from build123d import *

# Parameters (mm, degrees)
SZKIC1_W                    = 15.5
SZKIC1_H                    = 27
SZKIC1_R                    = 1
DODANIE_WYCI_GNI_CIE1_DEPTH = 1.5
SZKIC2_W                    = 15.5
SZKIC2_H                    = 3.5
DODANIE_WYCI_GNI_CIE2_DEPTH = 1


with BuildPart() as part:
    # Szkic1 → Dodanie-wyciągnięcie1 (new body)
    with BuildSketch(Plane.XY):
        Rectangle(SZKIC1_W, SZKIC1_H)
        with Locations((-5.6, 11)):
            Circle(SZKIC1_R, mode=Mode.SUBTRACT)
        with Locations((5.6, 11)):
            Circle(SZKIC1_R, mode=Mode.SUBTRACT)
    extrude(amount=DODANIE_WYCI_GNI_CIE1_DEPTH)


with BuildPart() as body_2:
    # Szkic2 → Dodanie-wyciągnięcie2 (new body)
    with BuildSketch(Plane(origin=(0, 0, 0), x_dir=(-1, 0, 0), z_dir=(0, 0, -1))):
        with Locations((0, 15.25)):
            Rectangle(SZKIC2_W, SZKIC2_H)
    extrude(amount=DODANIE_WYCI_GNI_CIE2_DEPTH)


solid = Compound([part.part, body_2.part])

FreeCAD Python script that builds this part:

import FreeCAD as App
import Part
import Sketcher
Q = App.Units.Quantity


def add_polygon(sketch, points):
    """Adds a closed chain of lines whose ends are joined by coincident constraints."""
    first, n = sketch.GeometryCount, len(points)
    for a, b in zip(points, points[1:] + points[:1]):
        sketch.addGeometry(Part.LineSegment(App.Vector(*a, 0), App.Vector(*b, 0)), False)
    for i in range(n):
        sketch.addConstraint(Sketcher.Constraint("Coincident", first + i, 2, first + (i + 1) % n, 1))

doc = App.newDocument("Part")
params = doc.addObject("Spreadsheet::Sheet", "Params")
for row, (alias, value) in enumerate([
    ("sketch1_diameter", "2 mm"),
    ("sketch1_height", "27 mm"),
    ("sketch1_width", "15.5 mm"),
    ("pad1_length", "1.5 mm"),
    ("sketch2_width", "15.5 mm"),
    ("sketch2_height", "3.5 mm"),
    ("pad2_length", "1 mm"),
], start=1):
    params.set(f"A{row}", alias)
    params.set(f"B{row}", "=" + value)
    params.setAlias(f"B{row}", alias)

body = doc.addObject("PartDesign::Body", "Body")

sketch1 = body.newObject("Sketcher::SketchObject", "Sketch")
sketch1.AttachmentSupport = (doc.getObject("XY_Plane"), [""])
sketch1.MapMode = "FlatFace"
add_polygon(sketch1, [(-7.75, 13.5), (-7.75, -13.5), (7.75, -13.5), (7.75, 13.5)])
sketch1.addGeometry(Part.Circle(App.Vector(-5.6, 11, 0), App.Vector(0, 0, 1), 1), False)
sketch1.addGeometry(Part.Circle(App.Vector(5.6, 11, 0), App.Vector(0, 0, 1), 1), False)
sketch1.addConstraint(Sketcher.Constraint("Vertical", 0))
sketch1.addConstraint(Sketcher.Constraint("Horizontal", 1))
sketch1.addConstraint(Sketcher.Constraint("Vertical", 2))
sketch1.addConstraint(Sketcher.Constraint("Horizontal", 3))
sketch1.addConstraint(Sketcher.Constraint("Equal", 4, 5))
sketch1.addConstraint(Sketcher.Constraint("Symmetric", 0, 2, 2, 2, -1, 1))
sketch1.addConstraint(Sketcher.Constraint("Symmetric", 4, 3, 5, 3, -2))
sketch1.addConstraint(Sketcher.Constraint("Diameter", 4, Q("2 mm")))
sketch1.addConstraint(Sketcher.Constraint("DistanceY", 0, 2, 0, 1, Q("27 mm")))
sketch1.addConstraint(Sketcher.Constraint("DistanceX", 1, 1, 1, 2, Q("15.5 mm")))
sketch1.addConstraint(Sketcher.Constraint("DistanceY", -1, 1, 4, 3, Q("11 mm")))
sketch1.addConstraint(Sketcher.Constraint("DistanceX", 4, 3, -1, 1, Q("5.6 mm")))
sketch1.setExpression("Constraints[11]", "Params.sketch1_diameter")
sketch1.setExpression("Constraints[12]", "Params.sketch1_height")
sketch1.setExpression("Constraints[13]", "Params.sketch1_width")
pad1 = body.newObject("PartDesign::Pad", "Pad")
pad1.Profile = sketch1
pad1.setExpression("Length", "Params.pad1_length")
body2 = doc.addObject("PartDesign::Body", "Body001")

sketch2 = body2.newObject("Sketcher::SketchObject", "Sketch001")
sketch2.AttachmentSupport = (doc.getObject("XY_Plane001"), [""])
sketch2.MapMode = "FlatFace"
add_polygon(sketch2, [(7.75, 17), (7.75, 13.5), (-7.75, 13.5), (-7.75, 17)])
sketch2.addConstraint(Sketcher.Constraint("Vertical", 0))
sketch2.addConstraint(Sketcher.Constraint("Horizontal", 1))
sketch2.addConstraint(Sketcher.Constraint("Vertical", 2))
sketch2.addConstraint(Sketcher.Constraint("Horizontal", 3))
sketch2.addConstraint(Sketcher.Constraint("DistanceX", 1, 2, 1, 1, Q("15.5 mm")))
sketch2.addConstraint(Sketcher.Constraint("DistanceY", 0, 2, 0, 1, Q("3.5 mm")))
sketch2.addConstraint(Sketcher.Constraint("DistanceY", -1, 1, 2, 2, Q("17 mm")))
sketch2.addConstraint(Sketcher.Constraint("DistanceX", -1, 1, 0, 2, Q("7.75 mm")))
sketch2.setExpression("Constraints[8]", "Params.sketch2_width")
sketch2.setExpression("Constraints[9]", "Params.sketch2_height")
pad2 = body2.newObject("PartDesign::Pad", "Pad001")
pad2.Profile = sketch2
pad2.setExpression("Length", "Params.pad2_length")
pad2.Reversed = True

doc.recompute()
